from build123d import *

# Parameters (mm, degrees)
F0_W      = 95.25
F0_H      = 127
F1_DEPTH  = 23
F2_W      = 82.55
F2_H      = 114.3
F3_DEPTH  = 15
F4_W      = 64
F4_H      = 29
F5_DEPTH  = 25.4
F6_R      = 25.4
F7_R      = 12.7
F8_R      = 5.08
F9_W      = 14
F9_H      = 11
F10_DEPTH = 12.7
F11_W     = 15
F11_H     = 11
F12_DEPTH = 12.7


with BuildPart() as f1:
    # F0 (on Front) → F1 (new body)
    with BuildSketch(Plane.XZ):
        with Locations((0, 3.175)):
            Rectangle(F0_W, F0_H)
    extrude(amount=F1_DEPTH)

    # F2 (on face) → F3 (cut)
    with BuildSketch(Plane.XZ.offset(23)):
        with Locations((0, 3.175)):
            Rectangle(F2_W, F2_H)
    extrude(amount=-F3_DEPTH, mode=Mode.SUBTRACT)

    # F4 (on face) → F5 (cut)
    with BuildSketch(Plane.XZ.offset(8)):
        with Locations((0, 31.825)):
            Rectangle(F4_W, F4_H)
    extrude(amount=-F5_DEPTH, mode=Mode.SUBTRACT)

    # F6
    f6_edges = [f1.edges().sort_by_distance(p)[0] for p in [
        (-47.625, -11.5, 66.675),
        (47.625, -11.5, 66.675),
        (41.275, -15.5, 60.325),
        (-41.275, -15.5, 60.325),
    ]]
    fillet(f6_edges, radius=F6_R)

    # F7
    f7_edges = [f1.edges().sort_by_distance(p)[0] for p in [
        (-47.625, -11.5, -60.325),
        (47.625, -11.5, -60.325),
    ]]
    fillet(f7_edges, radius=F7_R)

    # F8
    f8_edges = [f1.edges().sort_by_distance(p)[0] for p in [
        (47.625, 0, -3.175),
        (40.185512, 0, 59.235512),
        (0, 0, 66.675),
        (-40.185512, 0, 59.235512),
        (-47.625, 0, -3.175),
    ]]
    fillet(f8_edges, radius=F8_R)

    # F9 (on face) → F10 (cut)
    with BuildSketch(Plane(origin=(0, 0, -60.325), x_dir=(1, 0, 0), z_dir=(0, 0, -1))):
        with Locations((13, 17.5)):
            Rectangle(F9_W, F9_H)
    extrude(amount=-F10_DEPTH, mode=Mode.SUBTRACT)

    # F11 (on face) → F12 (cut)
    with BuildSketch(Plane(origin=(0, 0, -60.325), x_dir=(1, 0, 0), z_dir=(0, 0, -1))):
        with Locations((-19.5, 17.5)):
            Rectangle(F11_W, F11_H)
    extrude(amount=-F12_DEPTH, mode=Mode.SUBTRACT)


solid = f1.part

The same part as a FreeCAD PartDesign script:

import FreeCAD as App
import Part
import Sketcher
Q = App.Units.Quantity


def edges_at(feature, points):
    """Names of the edges that pass closest to the given points."""
    edges = feature.Shape.Edges
    near = lambda p: min(range(len(edges)), key=lambda i: edges[i].distToShape(Part.Vertex(*p))[0])
    return sorted({f"Edge{near(p) + 1}" for p in points})

doc = App.newDocument("Part")
body = doc.addObject("PartDesign::Body", "Body")

sketch1 = body.newObject("Sketcher::SketchObject", "Sketch")
sketch1.AttachmentSupport = (doc.getObject("XZ_Plane"), [""])
sketch1.MapMode = "FlatFace"
sketch1.addGeometry([
    Part.LineSegment(App.Vector(-48, 67, 0), App.Vector(-48, -60, 0)),
    Part.LineSegment(App.Vector(-48, -60, 0), App.Vector(48, -60, 0)),
    Part.LineSegment(App.Vector(48, -60, 0), App.Vector(48, 67, 0)),
    Part.LineSegment(App.Vector(48, 67, 0), App.Vector(-48, 67, 0)),
], False)
sketch1.addConstraint([
    Sketcher.Constraint("Coincident", 0, 2, 1, 1),
    Sketcher.Constraint("Coincident", 1, 2, 2, 1),
    Sketcher.Constraint("Coincident", 2, 2, 3, 1),
    Sketcher.Constraint("Coincident", 3, 2, 0, 1),
    Sketcher.Constraint("Vertical", 0),
    Sketcher.Constraint("Horizontal", 1),
    Sketcher.Constraint("Vertical", 2),
    Sketcher.Constraint("Horizontal", 3),
    Sketcher.Constraint("DistanceY", 0, 2, 0, 1, Q("5 in")),
    Sketcher.Constraint("DistanceX", 1, 1, 1, 2, Q("3.75 in")),
    Sketcher.Constraint("DistanceX", 0, 2, -1, 1, Q("1.875 in")),
    Sketcher.Constraint("DistanceY", 0, 2, -1, 1, Q("2.375 in")),
])
pad1 = body.newObject("PartDesign::Pad", "Pad")
pad1.Profile = sketch1
pad1.Length = 23

sketch2 = body.newObject("Sketcher::SketchObject", "Sketch001")
sketch2.AttachmentSupport = (doc.getObject("XZ_Plane"), [""])
sketch2.MapMode = "FlatFace"
sketch2.AttachmentOffset = App.Placement(App.Vector(0, 0, 23), App.Rotation())
sketch2.addGeometry([
    Part.LineSegment(App.Vector(-41, 60, 0), App.Vector(-41, -54, 0)),
    Part.LineSegment(App.Vector(-41, -54, 0), App.Vector(41, -54, 0)),
    Part.LineSegment(App.Vector(41, -54, 0), App.Vector(41, 60, 0)),
    Part.LineSegment(App.Vector(41, 60, 0), App.Vector(-41, 60, 0)),
], False)
sketch2.addConstraint([
    Sketcher.Constraint("Coincident", 0, 2, 1, 1),
    Sketcher.Constraint("Coincident", 1, 2, 2, 1),
    Sketcher.Constraint("Coincident", 2, 2, 3, 1),
    Sketcher.Constraint("Coincident", 3, 2, 0, 1),
    Sketcher.Constraint("Vertical", 0),
    Sketcher.Constraint("Horizontal", 1),
    Sketcher.Constraint("Vertical", 2),
    Sketcher.Constraint("Horizontal", 3),
    Sketcher.Constraint("DistanceY", 0, 2, 0, 1, Q("4.5 in")),
    Sketcher.Constraint("DistanceX", 1, 1, 1, 2, Q("3.25 in")),
    Sketcher.Constraint("DistanceX", 0, 2, -1, 1, Q("1.625 in")),
    Sketcher.Constraint("DistanceY", 0, 2, -1, 1, Q("2.125 in")),
])
pocket1 = body.newObject("PartDesign::Pocket", "Pocket")
pocket1.Profile = sketch2
pocket1.Length = 15

sketch3 = body.newObject("Sketcher::SketchObject", "Sketch002")
sketch3.AttachmentSupport = (doc.getObject("XZ_Plane"), [""])
sketch3.MapMode = "FlatFace"
sketch3.AttachmentOffset = App.Placement(App.Vector(0, 0, 8), App.Rotation())
sketch3.addGeometry([
    Part.LineSegment(App.Vector(-32, 46, 0), App.Vector(-32, 17, 0)),
    Part.LineSegment(App.Vector(-32, 17, 0), App.Vector(32, 17, 0)),
    Part.LineSegment(App.Vector(32, 17, 0), App.Vector(32, 46, 0)),
    Part.LineSegment(App.Vector(32, 46, 0), App.Vector(-32, 46, 0)),
], False)
sketch3.addConstraint([
    Sketcher.Constraint("Coincident", 0, 2, 1, 1),
    Sketcher.Constraint("Coincident", 1, 2, 2, 1),
    Sketcher.Constraint("Coincident", 2, 2, 3, 1),
    Sketcher.Constraint("Coincident", 3, 2, 0, 1),
    Sketcher.Constraint("Vertical", 0),
    Sketcher.Constraint("Horizontal", 1),
    Sketcher.Constraint("Vertical", 2),
    Sketcher.Constraint("Horizontal", 3),
    Sketcher.Constraint("DistanceX", 1, 1, 1, 2, 64.0),
    Sketcher.Constraint("DistanceY", 0, 2, 0, 1, 29.0),
    Sketcher.Constraint("DistanceX", 0, 2, -1, 1, 32.0),
    Sketcher.Constraint("DistanceY", -1, 1, 0, 2, 17.325),
])
pocket2 = body.newObject("PartDesign::Pocket", "Pocket001")
pocket2.Profile = sketch3
pocket2.Length = Q("1 in")
doc.recompute()

fillet = body.newObject("PartDesign::Fillet", "Fillet")
fillet.Base = (pocket2, edges_at(pocket2, [
    (-47.625, -11.5, 66.675),
    (47.625, -11.5, 66.675),
    (41.275, -15.5, 60.325),
    (-41.275, -15.5, 60.325),
]))
fillet.Radius = Q("1 in")
doc.recompute()

fillet2 = body.newObject("PartDesign::Fillet", "Fillet001")
fillet2.Base = (fillet, edges_at(fillet, [(-47.625, -11.5, -60.325), (47.625, -11.5, -60.325)]))
fillet2.Radius = Q("0.5 in")
doc.recompute()

fillet3 = body.newObject("PartDesign::Fillet", "Fillet002")
fillet3.Base = (fillet2, edges_at(fillet2, [
    (47.625, 0, -3.175),
    (40.186, 0, 59.236),
    (0, 0, 66.675),
    (-40.186, 0, 59.236),
    (-47.625, 0, -3.175),
]))
fillet3.Radius = Q("0.2 in")

sketch4 = body.newObject("Sketcher::SketchObject", "Sketch003")
sketch4.AttachmentSupport = (doc.getObject("XY_Plane"), [""])
sketch4.MapMode = "FlatFace"
sketch4.AttachmentOffset = App.Placement(App.Vector(0, 0, -2.375 * 25.4), App.Rotation())
sketch4.addGeometry([
    Part.LineSegment(App.Vector(6, -23, 0), App.Vector(6, -12, 0)),
    Part.LineSegment(App.Vector(6, -12, 0), App.Vector(20, -12, 0)),
    Part.LineSegment(App.Vector(20, -12, 0), App.Vector(20, -23, 0)),
    Part.LineSegment(App.Vector(20, -23, 0), App.Vector(6, -23, 0)),
], False)
sketch4.addConstraint([
    Sketcher.Constraint("Coincident", 0, 2, 1, 1),
    Sketcher.Constraint("Coincident", 1, 2, 2, 1),
    Sketcher.Constraint("Coincident", 2, 2, 3, 1),
    Sketcher.Constraint("Coincident", 3, 2, 0, 1),
    Sketcher.Constraint("Vertical", 0),
    Sketcher.Constraint("Horizontal", 1),
    Sketcher.Constraint("Vertical", 2),
    Sketcher.Constraint("Horizontal", 3),
    Sketcher.Constraint("DistanceX", 1, 1, 1, 2, 14.0),
    Sketcher.Constraint("DistanceY", 0, 1, 0, 2, 11.0),
    Sketcher.Constraint("DistanceX", -1, 1, 0, 2, 6.0),
    Sketcher.Constraint("DistanceY", 0, 2, -1, 1, 12.0),
])
pocket3 = body.newObject("PartDesign::Pocket", "Pocket002")
pocket3.Profile = sketch4
pocket3.Length = Q("0.5 in")
pocket3.Reversed = True

sketch5 = body.newObject("Sketcher::SketchObject", "Sketch004")
sketch5.AttachmentSupport = (doc.getObject("XY_Plane"), [""])
sketch5.MapMode = "FlatFace"
sketch5.AttachmentOffset = App.Placement(App.Vector(0, 0, -2.375 * 25.4), App.Rotation())
sketch5.addGeometry([
    Part.LineSegment(App.Vector(-27, -23, 0), App.Vector(-27, -12, 0)),
    Part.LineSegment(App.Vector(-27, -12, 0), App.Vector(-12, -12, 0)),
    Part.LineSegment(App.Vector(-12, -12, 0), App.Vector(-12, -23, 0)),
    Part.LineSegment(App.Vector(-12, -23, 0), App.Vector(-27, -23, 0)),
], False)
sketch5.addConstraint([
    Sketcher.Constraint("Coincident", 0, 2, 1, 1),
    Sketcher.Constraint("Coincident", 1, 2, 2, 1),
    Sketcher.Constraint("Coincident", 2, 2, 3, 1),
    Sketcher.Constraint("Coincident", 3, 2, 0, 1),
    Sketcher.Constraint("Vertical", 0),
    Sketcher.Constraint("Horizontal", 1),
    Sketcher.Constraint("Vertical", 2),
    Sketcher.Constraint("Horizontal", 3),
    Sketcher.Constraint("DistanceX", 1, 1, 1, 2, 15.0),
    Sketcher.Constraint("DistanceY", 0, 1, 0, 2, 11.0),
    Sketcher.Constraint("DistanceX", 0, 2, -1, 1, 27.0),
    Sketcher.Constraint("DistanceY", 0, 2, -1, 1, 12.0),
])
pocket4 = body.newObject("PartDesign::Pocket", "Pocket003")
pocket4.Profile = sketch5
pocket4.Length = Q("0.5 in")
pocket4.Reversed = True

doc.recompute()
